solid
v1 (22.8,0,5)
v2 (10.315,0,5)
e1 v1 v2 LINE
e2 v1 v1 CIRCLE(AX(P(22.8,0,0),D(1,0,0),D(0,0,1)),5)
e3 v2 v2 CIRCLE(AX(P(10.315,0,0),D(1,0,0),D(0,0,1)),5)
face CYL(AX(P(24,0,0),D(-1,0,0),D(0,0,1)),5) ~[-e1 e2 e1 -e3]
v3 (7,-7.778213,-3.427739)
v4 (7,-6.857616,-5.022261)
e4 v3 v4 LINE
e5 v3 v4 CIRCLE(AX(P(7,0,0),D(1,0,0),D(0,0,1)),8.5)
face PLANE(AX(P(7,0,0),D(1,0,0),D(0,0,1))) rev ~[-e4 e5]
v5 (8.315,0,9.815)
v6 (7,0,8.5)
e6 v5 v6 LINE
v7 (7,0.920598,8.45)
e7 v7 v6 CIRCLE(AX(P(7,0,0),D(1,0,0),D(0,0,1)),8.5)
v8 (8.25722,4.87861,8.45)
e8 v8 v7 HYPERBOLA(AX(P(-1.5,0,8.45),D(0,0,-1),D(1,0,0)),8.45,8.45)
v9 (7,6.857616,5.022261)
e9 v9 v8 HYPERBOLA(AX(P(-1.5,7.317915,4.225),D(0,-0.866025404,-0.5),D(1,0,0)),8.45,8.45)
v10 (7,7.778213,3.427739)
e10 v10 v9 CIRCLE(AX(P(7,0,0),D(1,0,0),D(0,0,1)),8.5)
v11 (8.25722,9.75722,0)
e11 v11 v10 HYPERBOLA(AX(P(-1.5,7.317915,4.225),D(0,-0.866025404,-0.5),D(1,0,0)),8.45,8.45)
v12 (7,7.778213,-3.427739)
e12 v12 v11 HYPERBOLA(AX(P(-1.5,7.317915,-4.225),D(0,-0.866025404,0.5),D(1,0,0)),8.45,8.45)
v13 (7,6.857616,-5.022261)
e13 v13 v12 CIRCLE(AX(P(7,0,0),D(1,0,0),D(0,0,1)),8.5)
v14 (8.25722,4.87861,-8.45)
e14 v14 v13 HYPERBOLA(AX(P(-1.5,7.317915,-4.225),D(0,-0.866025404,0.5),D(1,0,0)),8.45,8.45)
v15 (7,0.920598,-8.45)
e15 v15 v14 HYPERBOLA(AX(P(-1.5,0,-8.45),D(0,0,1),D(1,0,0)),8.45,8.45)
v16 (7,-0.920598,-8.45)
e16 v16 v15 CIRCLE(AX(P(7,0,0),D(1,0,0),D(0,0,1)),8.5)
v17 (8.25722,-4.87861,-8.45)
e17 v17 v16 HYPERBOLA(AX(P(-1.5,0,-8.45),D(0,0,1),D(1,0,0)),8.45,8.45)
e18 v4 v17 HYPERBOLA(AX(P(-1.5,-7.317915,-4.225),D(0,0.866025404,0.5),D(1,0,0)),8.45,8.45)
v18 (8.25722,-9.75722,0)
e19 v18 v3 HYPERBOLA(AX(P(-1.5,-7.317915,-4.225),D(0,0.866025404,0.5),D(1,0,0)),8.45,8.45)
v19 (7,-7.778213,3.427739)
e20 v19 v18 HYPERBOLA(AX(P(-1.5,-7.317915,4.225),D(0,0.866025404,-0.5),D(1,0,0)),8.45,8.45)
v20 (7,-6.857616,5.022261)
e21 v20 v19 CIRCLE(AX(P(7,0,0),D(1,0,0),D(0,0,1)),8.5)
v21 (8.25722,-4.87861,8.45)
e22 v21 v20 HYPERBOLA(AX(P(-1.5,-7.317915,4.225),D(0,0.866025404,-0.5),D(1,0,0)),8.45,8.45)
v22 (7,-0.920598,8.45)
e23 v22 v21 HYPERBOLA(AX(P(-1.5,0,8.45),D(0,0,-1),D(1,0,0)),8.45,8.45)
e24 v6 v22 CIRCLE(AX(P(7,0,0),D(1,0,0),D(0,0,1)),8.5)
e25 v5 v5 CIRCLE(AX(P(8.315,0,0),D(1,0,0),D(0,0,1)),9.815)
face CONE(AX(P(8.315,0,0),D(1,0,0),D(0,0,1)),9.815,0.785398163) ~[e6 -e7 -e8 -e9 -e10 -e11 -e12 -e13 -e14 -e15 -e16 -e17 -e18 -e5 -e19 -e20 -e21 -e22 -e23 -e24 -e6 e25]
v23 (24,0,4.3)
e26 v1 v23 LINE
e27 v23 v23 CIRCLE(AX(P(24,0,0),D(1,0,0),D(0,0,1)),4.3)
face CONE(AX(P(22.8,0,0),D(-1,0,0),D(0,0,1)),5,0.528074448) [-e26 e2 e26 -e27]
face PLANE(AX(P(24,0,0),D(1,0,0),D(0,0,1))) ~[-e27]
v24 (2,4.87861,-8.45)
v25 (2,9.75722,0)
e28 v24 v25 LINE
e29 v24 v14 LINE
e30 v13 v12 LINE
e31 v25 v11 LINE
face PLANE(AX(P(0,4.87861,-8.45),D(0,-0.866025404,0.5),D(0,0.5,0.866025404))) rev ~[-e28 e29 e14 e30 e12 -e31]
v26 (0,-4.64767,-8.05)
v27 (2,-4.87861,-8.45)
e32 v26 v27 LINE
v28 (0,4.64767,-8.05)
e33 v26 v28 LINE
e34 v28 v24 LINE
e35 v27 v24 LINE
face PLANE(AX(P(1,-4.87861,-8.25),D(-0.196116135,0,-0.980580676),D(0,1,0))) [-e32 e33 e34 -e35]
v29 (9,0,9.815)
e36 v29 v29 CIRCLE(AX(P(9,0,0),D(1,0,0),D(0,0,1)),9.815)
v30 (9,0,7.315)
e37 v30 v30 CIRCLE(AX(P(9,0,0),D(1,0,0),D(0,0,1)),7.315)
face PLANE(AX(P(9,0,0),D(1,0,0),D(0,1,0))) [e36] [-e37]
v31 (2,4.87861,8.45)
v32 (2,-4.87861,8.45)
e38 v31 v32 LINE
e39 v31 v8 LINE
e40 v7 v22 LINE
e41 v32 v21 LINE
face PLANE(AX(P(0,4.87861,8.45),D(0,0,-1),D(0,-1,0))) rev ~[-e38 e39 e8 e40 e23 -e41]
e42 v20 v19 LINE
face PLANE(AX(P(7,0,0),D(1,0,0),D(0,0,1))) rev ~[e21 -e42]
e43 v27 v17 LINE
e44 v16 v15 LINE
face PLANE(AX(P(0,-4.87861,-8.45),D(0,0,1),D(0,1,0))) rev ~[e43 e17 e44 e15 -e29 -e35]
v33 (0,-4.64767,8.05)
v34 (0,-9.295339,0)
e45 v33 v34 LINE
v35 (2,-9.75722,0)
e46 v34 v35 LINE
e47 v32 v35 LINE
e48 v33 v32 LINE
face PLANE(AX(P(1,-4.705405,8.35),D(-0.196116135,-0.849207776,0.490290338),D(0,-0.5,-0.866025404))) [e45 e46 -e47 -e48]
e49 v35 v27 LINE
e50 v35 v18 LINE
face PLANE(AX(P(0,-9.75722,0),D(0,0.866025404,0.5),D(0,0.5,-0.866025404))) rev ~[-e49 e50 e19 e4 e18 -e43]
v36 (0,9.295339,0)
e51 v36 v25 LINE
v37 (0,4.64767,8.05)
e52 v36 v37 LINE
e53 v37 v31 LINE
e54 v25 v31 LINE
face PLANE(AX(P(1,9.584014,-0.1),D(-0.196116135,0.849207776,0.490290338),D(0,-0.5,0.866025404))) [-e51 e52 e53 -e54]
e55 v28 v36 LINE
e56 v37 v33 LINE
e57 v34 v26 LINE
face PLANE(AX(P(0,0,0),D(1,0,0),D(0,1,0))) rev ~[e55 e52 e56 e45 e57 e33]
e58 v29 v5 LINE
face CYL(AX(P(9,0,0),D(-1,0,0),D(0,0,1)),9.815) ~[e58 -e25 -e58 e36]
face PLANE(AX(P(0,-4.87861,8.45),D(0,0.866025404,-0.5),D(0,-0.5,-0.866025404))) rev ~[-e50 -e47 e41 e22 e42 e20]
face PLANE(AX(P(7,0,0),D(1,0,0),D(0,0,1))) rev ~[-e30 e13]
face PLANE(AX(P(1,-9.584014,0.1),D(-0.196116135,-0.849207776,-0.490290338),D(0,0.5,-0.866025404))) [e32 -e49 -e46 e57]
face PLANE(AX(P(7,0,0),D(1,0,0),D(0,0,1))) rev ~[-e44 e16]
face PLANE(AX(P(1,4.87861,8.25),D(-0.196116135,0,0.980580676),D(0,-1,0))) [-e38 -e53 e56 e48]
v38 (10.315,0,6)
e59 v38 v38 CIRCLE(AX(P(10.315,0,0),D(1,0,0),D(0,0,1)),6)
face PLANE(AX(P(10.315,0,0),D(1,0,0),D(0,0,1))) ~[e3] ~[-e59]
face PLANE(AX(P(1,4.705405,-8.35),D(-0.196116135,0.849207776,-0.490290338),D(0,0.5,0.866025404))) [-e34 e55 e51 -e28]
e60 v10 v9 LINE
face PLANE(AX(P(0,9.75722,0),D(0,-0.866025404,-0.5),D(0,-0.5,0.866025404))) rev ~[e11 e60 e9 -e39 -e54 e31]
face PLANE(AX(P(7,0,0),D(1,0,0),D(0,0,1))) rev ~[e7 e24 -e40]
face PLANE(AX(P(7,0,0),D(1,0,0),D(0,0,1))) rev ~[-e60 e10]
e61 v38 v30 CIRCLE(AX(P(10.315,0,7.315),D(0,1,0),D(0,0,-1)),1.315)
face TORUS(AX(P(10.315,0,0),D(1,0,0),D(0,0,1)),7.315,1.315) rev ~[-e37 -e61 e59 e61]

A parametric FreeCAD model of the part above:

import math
import FreeCAD as App
import Part
import Sketcher
from FreeCAD import Vector
Q = App.Units.Quantity


def edges_at(feature, points):
    """Names of the edges that pass closest to the given points."""
    edges = feature.Shape.Edges
    near = lambda p: min(range(len(edges)), key=lambda i: edges[i].distToShape(Part.Vertex(*p))[0])
    return sorted({f"Edge{near(p) + 1}" for p in points})


def add_polygon(sketch, points):
    """Adds a closed chain of lines whose ends are joined by coincident constraints."""
    first, n = sketch.GeometryCount, len(points)
    for a, b in zip(points, points[1:] + points[:1]):
        sketch.addGeometry(Part.LineSegment(App.Vector(*a, 0), App.Vector(*b, 0)), False)
    for i in range(n):
        sketch.addConstraint(Sketcher.Constraint("Coincident", first + i, 2, first + (i + 1) % n, 1))

doc = App.newDocument("Part")
body = doc.addObject("PartDesign::Body", "Body")

# Sketch on YZ plane
sketch1 = body.newObject("Sketcher::SketchObject", "Sketch")
sketch1.AttachmentSupport = (doc.getObject("YZ_Plane"), [""])
sketch1.MapMode = "FlatFace"
add_polygon(sketch1, [(5, 8), (-5, 8), (-10, 0), (-5, -8), (5, -8), (10, 0)])  # lines 0-5
sketch1.addConstraint(Sketcher.Constraint("Horizontal", 0))
sketch1.addConstraint(Sketcher.Constraint("Horizontal", 3))
sketch1.addConstraint(Sketcher.Constraint("Symmetric", 0, 2, 3, 2, -1, 1))
sketch1.addConstraint(Sketcher.Constraint("Symmetric", 1, 2, 4, 2, -1, 1))
sketch1.addConstraint(Sketcher.Constraint("PointOnObject", 1, 2, -1))
sketch1.addConstraint(Sketcher.Constraint("Parallel", 2, 5))
sketch1.addConstraint(Sketcher.Constraint("Vertical", 0, 2, 2, 2))
sketch1.addConstraint(Sketcher.Constraint("Angle", 1, Q("-120 deg")))
sketch1.addConstraint(Sketcher.Constraint("DistanceY", 2, 2, 0, 2, 16.9))
sketch1.addConstraint(Sketcher.Constraint("DistanceX", 0, 2, 0, 1, 9.75722))
pad1 = body.newObject("PartDesign::Pad", "Pad")
pad1.Profile = sketch1
pad1.Length = 9

# Sketch on XZ plane
sketch2 = body.newObject("Sketcher::SketchObject", "Sketch001")
sketch2.AttachmentSupport = (doc.getObject("XZ_Plane"), [""])
sketch2.MapMode = "FlatFace"
sketch2.addGeometry(Part.LineSegment(Vector(24, 0, 0), Vector(24, 5, 0)), False)
sketch2.addGeometry(Part.LineSegment(Vector(24, 5, 0), Vector(10.3, 5, 0)), False)
sketch2.addGeometry(Part.LineSegment(Vector(10.3, 5, 0), Vector(10.3, 6, 0)), False)
sketch2.addGeometry(Part.ArcOfCircle(Part.Circle(Vector(10.3, 7.3, 0), Vector(0, 0, 1), 1.3), math.radians(180), math.radians(270)), False)
sketch2.addGeometry(Part.LineSegment(Vector(9, 7.3, 0), Vector(9, 9.8, 0)), False)
sketch2.addGeometry(Part.LineSegment(Vector(9, 9.8, 0), Vector(8.3, 9.8, 0)), False)
sketch2.addGeometry(Part.LineSegment(Vector(8.3, 9.8, 0), Vector(7, 8.5, 0)), False)
sketch2.addGeometry(Part.LineSegment(Vector(7, 8.5, 0), Vector(7, 0, 0)), False)
sketch2.addGeometry(Part.LineSegment(Vector(7, 0, 0), Vector(24, 0, 0)), False)
sketch2.addConstraint(Sketcher.Constraint("Coincident", 0, 2, 1, 1))
sketch2.addConstraint(Sketcher.Constraint("Coincident", 1, 2, 2, 1))
sketch2.addConstraint(Sketcher.Constraint("Coincident", 2, 2, 3, 2))
sketch2.addConstraint(Sketcher.Constraint("Tangent", 3, 1, 4, 1))
sketch2.addConstraint(Sketcher.Constraint("Coincident", 4, 2, 5, 1))
sketch2.addConstraint(Sketcher.Constraint("Coincident", 5, 2, 6, 1))
sketch2.addConstraint(Sketcher.Constraint("Coincident", 6, 2, 7, 1))
sketch2.addConstraint(Sketcher.Constraint("Coincident", 7, 2, 8, 1))
sketch2.addConstraint(Sketcher.Constraint("Coincident", 8, 2, 0, 1))
sketch2.addConstraint(Sketcher.Constraint("Vertical", 0))
sketch2.addConstraint(Sketcher.Constraint("Horizontal", 1))
sketch2.addConstraint(Sketcher.Constraint("Vertical", 2))
sketch2.addConstraint(Sketcher.Constraint("Vertical", 4))
sketch2.addConstraint(Sketcher.Constraint("Horizontal", 5))
sketch2.addConstraint(Sketcher.Constraint("Vertical", 7))
sketch2.addConstraint(Sketcher.Constraint("Horizontal", 8))
sketch2.addConstraint(Sketcher.Constraint("PointOnObject", 7, 2, -1))
sketch2.addConstraint(Sketcher.Constraint("Vertical", 3, 3, 1, 2))
sketch2.addConstraint(Sketcher.Constraint("DistanceX", 8, 1, 8, 2, 17.0))
sketch2.addConstraint(Sketcher.Constraint("DistanceY", 0, 1, 0, 2, 5.0))
sketch2.addConstraint(Sketcher.Constraint("DistanceY", 2, 1, 2, 2, 1.0))
sketch2.addConstraint(Sketcher.Constraint("Angle", 6, Q("-135 deg")))
sketch2.addConstraint(Sketcher.Constraint("DistanceY", 4, 1, 4, 2, 2.5))
sketch2.addConstraint(Sketcher.Constraint("DistanceY", 7, 2, 7, 1, 8.5))
sketch2.addConstraint(Sketcher.Constraint("DistanceX", -1, 1, 0, 2, 24.0))
sketch2.addConstraint(Sketcher.Constraint("DistanceX", -1, 1, 3, 1, 9.0))
sketch2.addConstraint(Sketcher.Constraint("Radius", 3, 1.315))
revolution = body.newObject("PartDesign::Revolution", "Revolution")
revolution.Profile = sketch2
revolution.ReferenceAxis = (sketch2, ["H_Axis"])
revolution.Angle = 360
doc.recompute()

chamfer = body.newObject("PartDesign::Chamfer", "Chamfer")
chamfer.Base = (revolution, edges_at(revolution, [
    (0, 0, 8.45),
    (0, -7.318, 4.225),
    (0, -7.318, -4.225),
    (0, 0, -8.45),
    (0, 7.318, -4.225),
    (0, 7.318, 4.225),
]))
chamfer.ChamferType = "Two distances"
chamfer.Size = 0.4
chamfer.Size2 = 2
chamfer.FlipDirection = True
doc.recompute()

chamfer2 = body.newObject("PartDesign::Chamfer", "Chamfer001")
chamfer2.Base = (chamfer, edges_at(chamfer, [(24, 0, -5)]))
chamfer2.ChamferType = "Two distances"
chamfer2.Size = 1.2
chamfer2.Size2 = 0.7

doc.recompute()
